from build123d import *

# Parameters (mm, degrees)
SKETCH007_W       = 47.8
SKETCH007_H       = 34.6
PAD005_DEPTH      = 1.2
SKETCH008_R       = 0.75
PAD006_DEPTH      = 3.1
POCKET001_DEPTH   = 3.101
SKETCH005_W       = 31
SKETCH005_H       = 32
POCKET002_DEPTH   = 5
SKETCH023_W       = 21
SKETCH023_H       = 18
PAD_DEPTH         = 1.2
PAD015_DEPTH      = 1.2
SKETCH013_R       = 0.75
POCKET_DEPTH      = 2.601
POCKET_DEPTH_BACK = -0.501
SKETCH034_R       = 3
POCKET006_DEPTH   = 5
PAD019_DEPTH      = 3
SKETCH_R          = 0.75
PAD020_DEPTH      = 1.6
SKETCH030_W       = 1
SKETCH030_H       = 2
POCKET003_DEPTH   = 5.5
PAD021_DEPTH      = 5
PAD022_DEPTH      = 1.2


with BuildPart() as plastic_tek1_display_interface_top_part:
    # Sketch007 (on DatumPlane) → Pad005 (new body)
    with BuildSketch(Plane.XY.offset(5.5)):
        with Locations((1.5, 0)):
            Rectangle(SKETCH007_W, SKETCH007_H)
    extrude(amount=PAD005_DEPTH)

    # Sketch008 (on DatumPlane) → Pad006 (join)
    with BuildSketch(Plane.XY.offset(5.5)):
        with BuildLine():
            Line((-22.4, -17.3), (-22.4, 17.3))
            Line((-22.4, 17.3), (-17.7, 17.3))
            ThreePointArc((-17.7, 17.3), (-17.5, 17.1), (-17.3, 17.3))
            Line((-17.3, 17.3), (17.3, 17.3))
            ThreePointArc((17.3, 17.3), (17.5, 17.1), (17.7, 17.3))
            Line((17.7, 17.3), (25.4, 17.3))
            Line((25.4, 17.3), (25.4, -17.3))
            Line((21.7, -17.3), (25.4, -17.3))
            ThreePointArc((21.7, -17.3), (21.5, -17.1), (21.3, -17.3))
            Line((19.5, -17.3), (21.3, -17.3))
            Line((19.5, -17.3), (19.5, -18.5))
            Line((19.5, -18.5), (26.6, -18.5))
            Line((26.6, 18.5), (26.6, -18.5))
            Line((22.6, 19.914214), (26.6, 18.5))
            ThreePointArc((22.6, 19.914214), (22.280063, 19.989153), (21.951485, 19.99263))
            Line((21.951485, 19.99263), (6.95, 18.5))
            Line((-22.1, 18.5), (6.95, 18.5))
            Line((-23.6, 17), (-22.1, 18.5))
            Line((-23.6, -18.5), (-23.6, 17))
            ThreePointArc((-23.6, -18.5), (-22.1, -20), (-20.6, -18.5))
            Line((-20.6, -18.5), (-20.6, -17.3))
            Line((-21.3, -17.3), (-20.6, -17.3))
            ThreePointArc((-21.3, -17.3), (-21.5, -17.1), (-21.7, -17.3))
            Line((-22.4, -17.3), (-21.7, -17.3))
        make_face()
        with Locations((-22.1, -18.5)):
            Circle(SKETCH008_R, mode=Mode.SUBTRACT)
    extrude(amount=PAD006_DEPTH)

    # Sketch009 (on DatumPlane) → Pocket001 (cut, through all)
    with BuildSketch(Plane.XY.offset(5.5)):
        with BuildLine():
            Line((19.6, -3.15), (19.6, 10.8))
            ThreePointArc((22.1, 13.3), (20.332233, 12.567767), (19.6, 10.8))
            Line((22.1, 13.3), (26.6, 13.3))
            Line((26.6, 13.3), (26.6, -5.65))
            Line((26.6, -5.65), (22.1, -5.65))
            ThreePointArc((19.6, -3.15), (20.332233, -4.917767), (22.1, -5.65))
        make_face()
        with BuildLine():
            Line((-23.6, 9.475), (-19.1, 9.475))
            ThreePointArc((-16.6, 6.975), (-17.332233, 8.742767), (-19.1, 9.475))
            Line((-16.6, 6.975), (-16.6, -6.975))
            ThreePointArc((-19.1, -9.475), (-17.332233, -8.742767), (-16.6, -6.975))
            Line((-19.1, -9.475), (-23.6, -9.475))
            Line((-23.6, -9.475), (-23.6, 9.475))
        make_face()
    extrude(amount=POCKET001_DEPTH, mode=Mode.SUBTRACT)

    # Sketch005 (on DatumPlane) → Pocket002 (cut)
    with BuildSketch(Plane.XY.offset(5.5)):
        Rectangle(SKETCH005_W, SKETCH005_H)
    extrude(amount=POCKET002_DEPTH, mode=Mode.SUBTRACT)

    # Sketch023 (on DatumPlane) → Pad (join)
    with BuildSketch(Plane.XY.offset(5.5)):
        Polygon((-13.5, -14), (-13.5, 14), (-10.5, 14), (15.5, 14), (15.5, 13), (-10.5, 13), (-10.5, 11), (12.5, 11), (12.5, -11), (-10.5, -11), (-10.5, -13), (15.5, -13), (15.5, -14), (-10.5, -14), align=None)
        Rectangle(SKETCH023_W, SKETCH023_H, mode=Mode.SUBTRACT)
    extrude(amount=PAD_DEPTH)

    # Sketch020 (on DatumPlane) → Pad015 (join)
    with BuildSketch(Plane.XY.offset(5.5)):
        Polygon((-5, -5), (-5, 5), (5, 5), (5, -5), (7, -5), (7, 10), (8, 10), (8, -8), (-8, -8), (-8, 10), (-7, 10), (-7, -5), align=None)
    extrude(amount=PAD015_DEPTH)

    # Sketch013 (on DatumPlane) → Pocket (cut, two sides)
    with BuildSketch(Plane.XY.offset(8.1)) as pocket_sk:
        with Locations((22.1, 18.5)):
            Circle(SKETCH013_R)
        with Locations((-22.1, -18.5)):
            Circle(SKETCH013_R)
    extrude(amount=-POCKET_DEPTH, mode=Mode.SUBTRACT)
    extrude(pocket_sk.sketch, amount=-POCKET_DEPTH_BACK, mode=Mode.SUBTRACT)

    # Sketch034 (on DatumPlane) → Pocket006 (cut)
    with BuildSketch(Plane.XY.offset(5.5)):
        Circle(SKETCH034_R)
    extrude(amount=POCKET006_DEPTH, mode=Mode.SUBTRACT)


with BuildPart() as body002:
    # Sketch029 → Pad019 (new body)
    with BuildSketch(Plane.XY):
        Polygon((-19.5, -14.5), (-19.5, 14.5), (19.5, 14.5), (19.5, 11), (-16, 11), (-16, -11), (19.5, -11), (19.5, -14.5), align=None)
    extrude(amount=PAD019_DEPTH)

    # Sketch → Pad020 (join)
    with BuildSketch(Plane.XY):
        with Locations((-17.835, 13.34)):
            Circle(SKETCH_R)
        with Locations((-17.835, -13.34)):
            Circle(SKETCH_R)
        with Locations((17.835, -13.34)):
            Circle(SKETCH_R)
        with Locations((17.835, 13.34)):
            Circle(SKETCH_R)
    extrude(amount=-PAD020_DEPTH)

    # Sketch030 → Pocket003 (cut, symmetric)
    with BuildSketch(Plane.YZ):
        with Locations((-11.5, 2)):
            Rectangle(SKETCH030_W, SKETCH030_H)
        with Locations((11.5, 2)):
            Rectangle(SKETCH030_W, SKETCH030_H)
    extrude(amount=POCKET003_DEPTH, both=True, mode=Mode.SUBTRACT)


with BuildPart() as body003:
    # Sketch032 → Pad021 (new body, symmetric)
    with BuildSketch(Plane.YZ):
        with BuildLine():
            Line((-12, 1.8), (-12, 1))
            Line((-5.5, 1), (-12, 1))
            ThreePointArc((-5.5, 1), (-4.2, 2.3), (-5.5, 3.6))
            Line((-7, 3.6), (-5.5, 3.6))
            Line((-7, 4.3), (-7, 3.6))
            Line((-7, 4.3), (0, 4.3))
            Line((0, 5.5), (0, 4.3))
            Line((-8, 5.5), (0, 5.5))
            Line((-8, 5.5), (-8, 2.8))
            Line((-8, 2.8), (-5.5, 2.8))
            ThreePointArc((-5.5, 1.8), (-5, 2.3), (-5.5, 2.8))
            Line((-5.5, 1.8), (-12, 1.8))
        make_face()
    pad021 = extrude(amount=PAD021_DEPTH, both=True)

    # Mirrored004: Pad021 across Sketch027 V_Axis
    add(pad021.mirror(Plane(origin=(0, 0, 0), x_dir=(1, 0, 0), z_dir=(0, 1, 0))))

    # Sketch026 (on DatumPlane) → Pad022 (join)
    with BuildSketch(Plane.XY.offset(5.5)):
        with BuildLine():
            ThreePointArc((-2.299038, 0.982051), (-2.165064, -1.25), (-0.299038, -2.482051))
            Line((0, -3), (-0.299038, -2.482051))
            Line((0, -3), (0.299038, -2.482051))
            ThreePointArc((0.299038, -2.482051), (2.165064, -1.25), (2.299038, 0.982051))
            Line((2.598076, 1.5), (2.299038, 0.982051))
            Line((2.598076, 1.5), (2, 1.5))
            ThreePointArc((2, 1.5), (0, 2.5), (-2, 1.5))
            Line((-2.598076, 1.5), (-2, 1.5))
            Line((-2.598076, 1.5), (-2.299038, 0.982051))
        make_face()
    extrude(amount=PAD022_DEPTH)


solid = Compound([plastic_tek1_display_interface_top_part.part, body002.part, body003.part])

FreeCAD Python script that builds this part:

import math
import FreeCAD as App
import Part
import Sketcher
Q = App.Units.Quantity

doc = App.newDocument("Part")
body = doc.addObject("PartDesign::Body", "Body")

# Sketch on XY plane
sketch1 = body.newObject("Sketcher::SketchObject", "Sketch")
sketch1.AttachmentSupport = (doc.getObject("XY_Plane"), [""])
sketch1.MapMode = "FlatFace"
sketch1.AttachmentOffset = App.Placement(App.Vector(0, 0, 5.5), App.Rotation())
sketch1.addGeometry([
    Part.LineSegment(App.Vector(-22.4, 17.3, 0), App.Vector(-22.4, -17.3, 0)),
    Part.LineSegment(App.Vector(-22.4, -17.3, 0), App.Vector(25.4, -17.3, 0)),
    Part.LineSegment(App.Vector(25.4, -17.3, 0), App.Vector(25.4, 17.3, 0)),
    Part.LineSegment(App.Vector(25.4, 17.3, 0), App.Vector(-22.4, 17.3, 0)),
], False)
sketch1.addConstraint([
    Sketcher.Constraint("Coincident", 0, 2, 1, 1),
    Sketcher.Constraint("Coincident", 1, 2, 2, 1),
    Sketcher.Constraint("Coincident", 2, 2, 3, 1),
    Sketcher.Constraint("Coincident", 3, 2, 0, 1),
    Sketcher.Constraint("Vertical", 0),
    Sketcher.Constraint("Horizontal", 1),
    Sketcher.Constraint("Vertical", 2),
    Sketcher.Constraint("Horizontal", 3),
    Sketcher.Constraint("DistanceX", 1, 1, 1, 2, Q("47.8 mm")),
    Sketcher.Constraint("DistanceY", 0, 2, 0, 1, Q("34.6 mm")),
    Sketcher.Constraint("DistanceX", 0, 2, -1, 1, Q("22.4 mm")),
    Sketcher.Constraint("DistanceY", 0, 2, -1, 1, Q("17.3 mm")),
])
pad1 = body.newObject("PartDesign::Pad", "Pad")
pad1.Profile = sketch1
pad1.Length = 1.2

# Sketch on XY plane
sketch2 = body.newObject("Sketcher::SketchObject", "Sketch001")
sketch2.AttachmentSupport = (doc.getObject("XY_Plane"), [""])
sketch2.MapMode = "FlatFace"
sketch2.AttachmentOffset = App.Placement(App.Vector(0, 0, 5.5), App.Rotation())
sketch2.addGeometry([
    Part.LineSegment(App.Vector(-22.4, -17.3, 0), App.Vector(-22.4, 17.3, 0)),  # 0
    Part.LineSegment(App.Vector(-22.4, 17.3, 0), App.Vector(-17.7, 17.3, 0)),  # 1
    Part.ArcOfCircle(Part.Circle(App.Vector(-17.5, 17.3, 0), App.Vector(0, 0, 1), 0.2), math.radians(180), math.radians(360)),  # 2
    Part.LineSegment(App.Vector(-17.3, 17.3, 0), App.Vector(17.3, 17.3, 0)),  # 3
    Part.ArcOfCircle(Part.Circle(App.Vector(17.5, 17.3, 0), App.Vector(0, 0, 1), 0.2), math.radians(180), math.radians(360)),  # 4
    Part.LineSegment(App.Vector(17.7, 17.3, 0), App.Vector(25.4, 17.3, 0)),  # 5
    Part.LineSegment(App.Vector(25.4, 17.3, 0), App.Vector(25.4, -17.3, 0)),  # 6
    Part.LineSegment(App.Vector(25.4, -17.3, 0), App.Vector(21.7, -17.3, 0)),  # 7
    Part.ArcOfCircle(Part.Circle(App.Vector(21.5, -17.3, 0), App.Vector(0, 0, 1), 0.2), math.radians(0), math.radians(180)),  # 8
    Part.LineSegment(App.Vector(21.3, -17.3, 0), App.Vector(19.5, -17.3, 0)),  # 9
    Part.LineSegment(App.Vector(19.5, -17.3, 0), App.Vector(19.5, -18.5, 0)),  # 10
    Part.LineSegment(App.Vector(19.5, -18.5, 0), App.Vector(26.6, -18.5, 0)),  # 11
    Part.LineSegment(App.Vector(26.6, -18.5, 0), App.Vector(26.6, 18.5, 0)),  # 12
    Part.LineSegment(App.Vector(26.6, 18.5, 0), App.Vector(22.6, 19.914214, 0)),  # 13
    Part.ArcOfCircle(Part.Circle(App.Vector(22.099997, 18.499975, 0), App.Vector(0, 0, 1), 1.500025), math.radians(70.528998), math.radians(95.681963)),  # 14
    Part.LineSegment(App.Vector(21.951485, 19.99263, 0), App.Vector(6.95, 18.5, 0)),  # 15
    Part.LineSegment(App.Vector(6.95, 18.5, 0), App.Vector(-22.1, 18.5, 0)),  # 16
    Part.LineSegment(App.Vector(-22.1, 18.5, 0), App.Vector(-23.6, 17, 0)),  # 17
    Part.LineSegment(App.Vector(-23.6, 17, 0), App.Vector(-23.6, -18.5, 0)),  # 18
    Part.ArcOfCircle(Part.Circle(App.Vector(-22.1, -18.5, 0), App.Vector(0, 0, 1), 1.5), math.radians(180), math.radians(360)),  # 19
    Part.LineSegment(App.Vector(-20.6, -18.5, 0), App.Vector(-20.6, -17.3, 0)),  # 20
    Part.LineSegment(App.Vector(-20.6, -17.3, 0), App.Vector(-21.3, -17.3, 0)),  # 21
    Part.ArcOfCircle(Part.Circle(App.Vector(-21.5, -17.3, 0), App.Vector(0, 0, 1), 0.2), math.radians(0), math.radians(180)),  # 22
    Part.LineSegment(App.Vector(-21.7, -17.3, 0), App.Vector(-22.4, -17.3, 0)),  # 23
    Part.Circle(App.Vector(-22.1, -18.5, 0), App.Vector(0, 0, 1), 0.75),  # 24
], False)
sketch2.addConstraint([
    Sketcher.Constraint("Coincident", 0, 2, 1, 1),
    Sketcher.Constraint("Coincident", 1, 2, 2, 1),
    Sketcher.Constraint("Coincident", 2, 2, 3, 1),
    Sketcher.Constraint("Coincident", 3, 2, 4, 1),
    Sketcher.Constraint("Coincident", 4, 2, 5, 1),
    Sketcher.Constraint("Coincident", 5, 2, 6, 1),
    Sketcher.Constraint("Coincident", 6, 2, 7, 1),
    Sketcher.Constraint("Coincident", 7, 2, 8, 1),
    Sketcher.Constraint("Coincident", 8, 2, 9, 1),
    Sketcher.Constraint("Coincident", 9, 2, 10, 1),
    Sketcher.Constraint("Coincident", 10, 2, 11, 1),
    Sketcher.Constraint("Coincident", 11, 2, 12, 1),
    Sketcher.Constraint("Coincident", 12, 2, 13, 1),
    Sketcher.Constraint("Coincident", 13, 2, 14, 1),
    Sketcher.Constraint("Coincident", 14, 2, 15, 1),
    Sketcher.Constraint("Coincident", 15, 2, 16, 1),
    Sketcher.Constraint("Coincident", 16, 2, 17, 1),
    Sketcher.Constraint("Coincident", 17, 2, 18, 1),
    Sketcher.Constraint("Tangent", 18, 2, 19, 1),
    Sketcher.Constraint("Tangent", 19, 2, 20, 1),
    Sketcher.Constraint("Coincident", 20, 2, 21, 1),
    Sketcher.Constraint("Coincident", 21, 2, 22, 1),
    Sketcher.Constraint("Coincident", 22, 2, 23, 1),
    Sketcher.Constraint("Coincident", 23, 2, 0, 1),
    Sketcher.Constraint("Vertical", 0),
    Sketcher.Constraint("Horizontal", 1),
    Sketcher.Constraint("Horizontal", 3),
    Sketcher.Constraint("Horizontal", 5),
    Sketcher.Constraint("Vertical", 6),
    Sketcher.Constraint("Horizontal", 7),
    Sketcher.Constraint("Horizontal", 9),
    Sketcher.Constraint("Vertical", 10),
    Sketcher.Constraint("Horizontal", 11),
    Sketcher.Constraint("Vertical", 12),
    Sketcher.Constraint("Horizontal", 16),
    Sketcher.Constraint("Vertical", 18),
    Sketcher.Constraint("Vertical", 20),
    Sketcher.Constraint("Horizontal", 21),
    Sketcher.Constraint("Horizontal", 23),
    Sketcher.Constraint("Coincident", 24, 3, 19, 3),
    Sketcher.Constraint("Equal", 2, 4),
    Sketcher.Constraint("Equal", 4, 8),
    Sketcher.Constraint("Equal", 8, 22),
    Sketcher.Constraint("Symmetric", 2, 3, 4, 3, -2),
    Sketcher.Constraint("Symmetric", 8, 3, 22, 3, -2),
    Sketcher.Constraint("Horizontal", 4, 3, 0, 2),
    Sketcher.Constraint("Horizontal", 1, 2, 2, 2),
    Sketcher.Constraint("Horizontal", 3, 2, 4, 2),
    Sketcher.Constraint("Horizontal", 22, 3, 6, 2),
    Sketcher.Constraint("Horizontal", 7, 2, 8, 2),
    Sketcher.Constraint("Horizontal", 24, 3, 10, 2),
    Sketcher.Constraint("Horizontal", 12, 2, 15, 2),
    Sketcher.Constraint("Horizontal", 9, 2, 20, 2),
    Sketcher.Constraint("Horizontal", 21, 2, 22, 2),
    Sketcher.Constraint("Vertical", 24, 3, 16, 2),
    Sketcher.Constraint("Equal", 21, 23),
    Sketcher.Constraint("Equal", 3, 0),
    Sketcher.Constraint("Diameter", 24, Q("1.5 mm")),
    Sketcher.Constraint("Radius", 2, Q("0.2 mm")),
    Sketcher.Constraint("Radius", 19, Q("1.5 mm")),
    Sketcher.Constraint("DistanceY", 12, 1, 12, 2, Q("37 mm")),
    Sketcher.Constraint("Angle", 17, Q("-135 deg")),
    Sketcher.Constraint("DistanceX", 1, 1, 1, 2, Q("4.7 mm")),
    Sketcher.Constraint("DistanceX", 3, 1, 3, 2, Q("34.6 mm")),
    Sketcher.Constraint("DistanceX", 5, 1, 5, 2, Q("7.7 mm")),
    Sketcher.Constraint("DistanceX", 7, 2, 7, 1, Q("3.7 mm")),
    Sketcher.Constraint("DistanceX", 9, 2, 9, 1, Q("1.8 mm")),
    Sketcher.Constraint("DistanceX", 11, 1, 11, 2, Q("7.1 mm")),
    Sketcher.Constraint("DistanceY", 10, 2, 10, 1, Q("1.2 mm")),
    Sketcher.Constraint("DistanceY", -1, 1, 17, 2, Q("17 mm")),
    Sketcher.Constraint("DistanceX", 13, 2, 12, 2, Q("4 mm")),
    Sketcher.Constraint("DistanceX", 16, 2, 16, 1, Q("29.05 mm")),
    Sketcher.Constraint("Radius", 14, Q("1.500025 mm")),
    Sketcher.Constraint("Distance", 13, Q("4.242641 mm")),
    Sketcher.Constraint("Distance", 15, Q("15.07556 mm")),
    Sketcher.Constraint("DistanceY", -1, 1, 14, 2, Q("19.99263 mm")),
])
pad2 = body.newObject("PartDesign::Pad", "Pad001")
pad2.Profile = sketch2
pad2.Length = 3.1

# Sketch on XY plane
sketch3 = body.newObject("Sketcher::SketchObject", "Sketch002")
sketch3.AttachmentSupport = (doc.getObject("XY_Plane"), [""])
sketch3.MapMode = "FlatFace"
sketch3.AttachmentOffset = App.Placement(App.Vector(0, 0, 5.5), App.Rotation())
sketch3.addGeometry([
    Part.LineSegment(App.Vector(19.6, 10.8, 0), App.Vector(19.6, -3.15, 0)),  # 0
    Part.ArcOfCircle(Part.Circle(App.Vector(22.1, -3.15, 0), App.Vector(0, 0, 1), 2.5), math.radians(179.999996), math.radians(270.000004)),  # 1
    Part.LineSegment(App.Vector(22.1, -5.65, 0), App.Vector(26.6, -5.65, 0)),  # 2
    Part.LineSegment(App.Vector(26.6, -5.65, 0), App.Vector(26.6, 13.3, 0)),  # 3
    Part.LineSegment(App.Vector(26.6, 13.3, 0), App.Vector(22.1, 13.3, 0)),  # 4
    Part.ArcOfCircle(Part.Circle(App.Vector(22.1, 10.8, 0), App.Vector(0, 0, 1), 2.5), math.radians(89.999996), math.radians(180.000004)),  # 5
    Part.LineSegment(App.Vector(-19.1, 9.475, 0), App.Vector(-23.6, 9.475, 0)),  # 6
    Part.LineSegment(App.Vector(-23.6, 9.475, 0), App.Vector(-23.6, -9.475, 0)),  # 7
    Part.LineSegment(App.Vector(-23.6, -9.475, 0), App.Vector(-19.1, -9.475, 0)),  # 8
    Part.ArcOfCircle(Part.Circle(App.Vector(-19.1, -6.975, 0), App.Vector(0, 0, 1), 2.5), math.radians(-90.000004), math.radians(0.000004)),  # 9
    Part.LineSegment(App.Vector(-16.6, -6.975, 0), App.Vector(-16.6, 6.975, 0)),  # 10
    Part.ArcOfCircle(Part.Circle(App.Vector(-19.1, 6.975, 0), App.Vector(0, 0, 1), 2.5), math.radians(-0.000004), math.radians(90.000004)),  # 11
], False)
sketch3.addConstraint([
    Sketcher.Constraint("Tangent", 0, 2, 1, 1),
    Sketcher.Constraint("Tangent", 1, 2, 2, 1),
    Sketcher.Constraint("Coincident", 2, 2, 3, 1),
    Sketcher.Constraint("Coincident", 3, 2, 4, 1),
    Sketcher.Constraint("Tangent", 4, 2, 5, 1),
    Sketcher.Constraint("Tangent", 5, 2, 0, 1),
    Sketcher.Constraint("Coincident", 6, 2, 7, 1),
    Sketcher.Constraint("Coincident", 7, 2, 8, 1),
    Sketcher.Constraint("Tangent", 8, 2, 9, 1),
    Sketcher.Constraint("Tangent", 9, 2, 10, 1),
    Sketcher.Constraint("Tangent", 10, 2, 11, 1),
    Sketcher.Constraint("Tangent", 11, 2, 6, 1),
    Sketcher.Constraint("Vertical", 0),
    Sketcher.Constraint("Horizontal", 2),
    Sketcher.Constraint("Vertical", 3),
    Sketcher.Constraint("Horizontal", 4),
    Sketcher.Constraint("Horizontal", 6),
    Sketcher.Constraint("Vertical", 7),
    Sketcher.Constraint("Horizontal", 8),
    Sketcher.Constraint("Vertical", 10),
    Sketcher.Constraint("Equal", 1, 5),
    Sketcher.Constraint("Equal", 5, 9),
    Sketcher.Constraint("Equal", 9, 11),
    Sketcher.Constraint("Equal", 4, 6),
    Sketcher.Constraint("Equal", 3, 7),
    Sketcher.Constraint("Radius", 1, Q("2.5 mm")),
    Sketcher.Constraint("DistanceX", 2, 1, 2, 2, Q("4.5 mm")),
    Sketcher.Constraint("DistanceY", 0, 2, 0, 1, Q("13.95 mm")),
    Sketcher.Constraint("DistanceX", -1, 1, 1, 3, Q("22.1 mm")),
    Sketcher.Constraint("DistanceY", -1, 1, 5, 3, Q("10.8 mm")),
    Sketcher.Constraint("DistanceX", 9, 3, -1, 1, Q("19.1 mm")),
    Sketcher.Constraint("DistanceY", 9, 3, -1, 1, Q("6.975 mm")),
])
pocket1 = body.newObject("PartDesign::Pocket", "Pocket")
pocket1.Profile = sketch3
pocket1.Type = "ThroughAll"
pocket1.Reversed = True

# Sketch on XY plane
sketch4 = body.newObject("Sketcher::SketchObject", "Sketch003")
sketch4.AttachmentSupport = (doc.getObject("XY_Plane"), [""])
sketch4.MapMode = "FlatFace"
sketch4.AttachmentOffset = App.Placement(App.Vector(0, 0, 5.5), App.Rotation())
sketch4.addGeometry([
    Part.LineSegment(App.Vector(-15.5, 16, 0), App.Vector(-15.5, -16, 0)),
    Part.LineSegment(App.Vector(-15.5, -16, 0), App.Vector(15.5, -16, 0)),
    Part.LineSegment(App.Vector(15.5, -16, 0), App.Vector(15.5, 16, 0)),
    Part.LineSegment(App.Vector(15.5, 16, 0), App.Vector(-15.5, 16, 0)),
], False)
sketch4.addConstraint([
    Sketcher.Constraint("Coincident", 0, 2, 1, 1),
    Sketcher.Constraint("Coincident", 1, 2, 2, 1),
    Sketcher.Constraint("Coincident", 2, 2, 3, 1),
    Sketcher.Constraint("Coincident", 3, 2, 0, 1),
    Sketcher.Constraint("Vertical", 0),
    Sketcher.Constraint("Horizontal", 1),
    Sketcher.Constraint("Vertical", 2),
    Sketcher.Constraint("Horizontal", 3),
    Sketcher.Constraint("Symmetric", 0, 2, 2, 2, -1, 1),
    Sketcher.Constraint("DistanceX", 1, 1, 1, 2, Q("31 mm")),
    Sketcher.Constraint("DistanceY", 0, 2, 0, 1, Q("32 mm")),
])
pocket2 = body.newObject("PartDesign::Pocket", "Pocket001")
pocket2.Profile = sketch4
pocket2.Length = 5
pocket2.Reversed = True

# Sketch on XY plane
sketch5 = body.newObject("Sketcher::SketchObject", "Sketch004")
sketch5.AttachmentSupport = (doc.getObject("XY_Plane"), [""])
sketch5.MapMode = "FlatFace"
sketch5.AttachmentOffset = App.Placement(App.Vector(0, 0, 5.5), App.Rotation())
sketch5.addGeometry([
    Part.LineSegment(App.Vector(-13.5, 14, 0), App.Vector(-13.5, -14, 0)),  # 0
    Part.LineSegment(App.Vector(-13.5, -14, 0), App.Vector(15.5, -14, 0)),  # 1
    Part.LineSegment(App.Vector(15.5, -14, 0), App.Vector(15.5, -13, 0)),  # 2
    Part.LineSegment(App.Vector(15.5, -13, 0), App.Vector(-10.5, -13, 0)),  # 3
    Part.LineSegment(App.Vector(-10.5, -13, 0), App.Vector(-10.5, -11, 0)),  # 4
    Part.LineSegment(App.Vector(-10.5, -11, 0), App.Vector(12.5, -11, 0)),  # 5
    Part.LineSegment(App.Vector(12.5, -11, 0), App.Vector(12.5, 11, 0)),  # 6
    Part.LineSegment(App.Vector(12.5, 11, 0), App.Vector(-10.5, 11, 0)),  # 7
    Part.LineSegment(App.Vector(-10.5, 11, 0), App.Vector(-10.5, 13, 0)),  # 8
    Part.LineSegment(App.Vector(-10.5, 13, 0), App.Vector(15.5, 13, 0)),  # 9
    Part.LineSegment(App.Vector(15.5, 13, 0), App.Vector(15.5, 14, 0)),  # 10
    Part.LineSegment(App.Vector(15.5, 14, 0), App.Vector(-13.5, 14, 0)),  # 11
    Part.LineSegment(App.Vector(-10.5, -9, 0), App.Vector(-10.5, 9, 0)),  # 12
    Part.LineSegment(App.Vector(-10.5, 9, 0), App.Vector(10.5, 9, 0)),  # 13
    Part.LineSegment(App.Vector(10.5, 9, 0), App.Vector(10.5, -9, 0)),  # 14
    Part.LineSegment(App.Vector(10.5, -9, 0), App.Vector(-10.5, -9, 0)),  # 15
], False)
sketch5.addConstraint([
    Sketcher.Constraint("Coincident", 0, 2, 1, 1),
    Sketcher.Constraint("Coincident", 1, 2, 2, 1),
    Sketcher.Constraint("Coincident", 2, 2, 3, 1),
    Sketcher.Constraint("Coincident", 3, 2, 4, 1),
    Sketcher.Constraint("Coincident", 4, 2, 5, 1),
    Sketcher.Constraint("Coincident", 5, 2, 6, 1),
    Sketcher.Constraint("Coincident", 6, 2, 7, 1),
    Sketcher.Constraint("Coincident", 7, 2, 8, 1),
    Sketcher.Constraint("Coincident", 8, 2, 9, 1),
    Sketcher.Constraint("Coincident", 9, 2, 10, 1),
    Sketcher.Constraint("Coincident", 10, 2, 11, 1),
    Sketcher.Constraint("Coincident", 11, 2, 0, 1),
    Sketcher.Constraint("Coincident", 12, 2, 13, 1),
    Sketcher.Constraint("Coincident", 13, 2, 14, 1),
    Sketcher.Constraint("Coincident", 14, 2, 15, 1),
    Sketcher.Constraint("Coincident", 15, 2, 12, 1),
    Sketcher.Constraint("Vertical", 0),
    Sketcher.Constraint("Horizontal", 1),
    Sketcher.Constraint("Vertical", 2),
    Sketcher.Constraint("Horizontal", 3),
    Sketcher.Constraint("Vertical", 4),
    Sketcher.Constraint("Horizontal", 5),
    Sketcher.Constraint("Vertical", 6),
    Sketcher.Constraint("Horizontal", 7),
    Sketcher.Constraint("Vertical", 8),
    Sketcher.Constraint("Horizontal", 9),
    Sketcher.Constraint("Vertical", 10),
    Sketcher.Constraint("Horizontal", 11),
    Sketcher.Constraint("Vertical", 12),
    Sketcher.Constraint("Horizontal", 13),
    Sketcher.Constraint("Vertical", 14),
    Sketcher.Constraint("Horizontal", 15),
    Sketcher.Constraint("Symmetric", 12, 2, 14, 2, -1, 1),
    Sketcher.Constraint("Symmetric", 4, 2, 7, 2, -1),
    Sketcher.Constraint("Symmetric", 2, 2, 9, 2, -1),
    Sketcher.Constraint("Vertical", 8, 2, 12, 2),
    Sketcher.Constraint("Equal", 2, 10),
    Sketcher.Constraint("DistanceX", 1, 1, 1, 2, Q("29 mm")),
    Sketcher.Constraint("DistanceX", 3, 2, 3, 1, Q("26 mm")),
    Sketcher.Constraint("DistanceX", 5, 1, 5, 2, Q("23 mm")),
    Sketcher.Constraint("DistanceX", 13, 1, 13, 2, Q("21 mm")),
    Sketcher.Constraint("DistanceY", 0, 2, 0, 1, Q("28 mm")),
    Sketcher.Constraint("DistanceY", 2, 1, 2, 2, Q("1 mm")),
    Sketcher.Constraint("DistanceY", 4, 1, 4, 2, Q("2 mm")),
    Sketcher.Constraint("DistanceY", 12, 1, 12, 2, Q("18 mm")),
])
pad3 = body.newObject("PartDesign::Pad", "Pad002")
pad3.Profile = sketch5
pad3.Length = 1.2

# Sketch on XY plane
sketch6 = body.newObject("Sketcher::SketchObject", "Sketch005")
sketch6.AttachmentSupport = (doc.getObject("XY_Plane"), [""])
sketch6.MapMode = "FlatFace"
sketch6.AttachmentOffset = App.Placement(App.Vector(0, 0, 5.5), App.Rotation())
sketch6.addGeometry([
    Part.LineSegment(App.Vector(-5, 5, 0), App.Vector(-5, -5, 0)),  # 0
    Part.LineSegment(App.Vector(-5, -5, 0), App.Vector(-7, -5, 0)),  # 1
    Part.LineSegment(App.Vector(-7, -5, 0), App.Vector(-7, 10, 0)),  # 2
    Part.LineSegment(App.Vector(-7, 10, 0), App.Vector(-8, 10, 0)),  # 3
    Part.LineSegment(App.Vector(-8, 10, 0), App.Vector(-8, -8, 0)),  # 4
    Part.LineSegment(App.Vector(-8, -8, 0), App.Vector(8, -8, 0)),  # 5
    Part.LineSegment(App.Vector(8, -8, 0), App.Vector(8, 10, 0)),  # 6
    Part.LineSegment(App.Vector(8, 10, 0), App.Vector(7, 10, 0)),  # 7
    Part.LineSegment(App.Vector(7, 10, 0), App.Vector(7, -5, 0)),  # 8
    Part.LineSegment(App.Vector(7, -5, 0), App.Vector(5, -5, 0)),  # 9
    Part.LineSegment(App.Vector(5, -5, 0), App.Vector(5, 5, 0)),  # 10
    Part.LineSegment(App.Vector(5, 5, 0), App.Vector(-5, 5, 0)),  # 11
], False)
sketch6.addConstraint([
    Sketcher.Constraint("Coincident", 0, 2, 1, 1),
    Sketcher.Constraint("Coincident", 1, 2, 2, 1),
    Sketcher.Constraint("Coincident", 2, 2, 3, 1),
    Sketcher.Constraint("Coincident", 3, 2, 4, 1),
    Sketcher.Constraint("Coincident", 4, 2, 5, 1),
    Sketcher.Constraint("Coincident", 5, 2, 6, 1),
    Sketcher.Constraint("Coincident", 6, 2, 7, 1),
    Sketcher.Constraint("Coincident", 7, 2, 8, 1),
    Sketcher.Constraint("Coincident", 8, 2, 9, 1),
    Sketcher.Constraint("Coincident", 9, 2, 10, 1),
    Sketcher.Constraint("Coincident", 10, 2, 11, 1),
    Sketcher.Constraint("Coincident", 11, 2, 0, 1),
    Sketcher.Constraint("Vertical", 0),
    Sketcher.Constraint("Horizontal", 1),
    Sketcher.Constraint("Vertical", 2),
    Sketcher.Constraint("Horizontal", 3),
    Sketcher.Constraint("Vertical", 4),
    Sketcher.Constraint("Horizontal", 5),
    Sketcher.Constraint("Vertical", 6),
    Sketcher.Constraint("Horizontal", 7),
    Sketcher.Constraint("Vertical", 8),
    Sketcher.Constraint("Horizontal", 9),
    Sketcher.Constraint("Vertical", 10),
    Sketcher.Constraint("Horizontal", 11),
    Sketcher.Constraint("Symmetric", 0, 2, 10, 2, -1, 1),
    Sketcher.Constraint("Symmetric", 3, 2, 6, 2, -2),
    Sketcher.Constraint("Symmetric", 1, 2, 8, 2, -2),
    Sketcher.Constraint("Equal", 11, 0),
    Sketcher.Constraint("DistanceX", 1, 2, 1, 1, Q("2 mm")),
    Sketcher.Constraint("DistanceX", 3, 2, 3, 1, Q("1 mm")),
    Sketcher.Constraint("DistanceX", 5, 1, 5, 2, Q("16 mm")),
    Sketcher.Constraint("DistanceY", 2, 1, 2, 2, Q("15 mm")),
    Sketcher.Constraint("DistanceY", 4, 2, 4, 1, Q("18 mm")),
])
pad4 = body.newObject("PartDesign::Pad", "Pad003")
pad4.Profile = sketch6
pad4.Length = 1.2

# Sketch on XY plane
sketch7 = body.newObject("Sketcher::SketchObject", "Sketch006")
sketch7.AttachmentSupport = (doc.getObject("XY_Plane"), [""])
sketch7.MapMode = "FlatFace"
sketch7.AttachmentOffset = App.Placement(App.Vector(0, 0, 8.1), App.Rotation())
sketch7.addGeometry([
    Part.Circle(App.Vector(22.1, 18.5, 0), App.Vector(0, 0, 1), 0.75),
    Part.Circle(App.Vector(-22.1, -18.5, 0), App.Vector(0, 0, 1), 0.75),
], False)
sketch7.addConstraint([
    Sketcher.Constraint("Equal", 0, 1),
    Sketcher.Constraint("Symmetric", 0, 3, 1, 3, -1, 1),
    Sketcher.Constraint("Diameter", 0, Q("1.5 mm")),
    Sketcher.Constraint("DistanceY", 1, 3, 0, 3, Q("37 mm")),
    Sketcher.Constraint("DistanceX", -1, 1, 0, 3, Q("22.1 mm")),
])
pocket3 = body.newObject("PartDesign::Pocket", "Pocket002")
pocket3.Profile = sketch7
pocket3.Type = "ThroughAll"
pocket3.Midplane = True

# Sketch on XY plane
sketch8 = body.newObject("Sketcher::SketchObject", "Sketch007")
sketch8.AttachmentSupport = (doc.getObject("XY_Plane"), [""])
sketch8.MapMode = "FlatFace"
sketch8.AttachmentOffset = App.Placement(App.Vector(0, 0, 5.5), App.Rotation())
sketch8.addGeometry(Part.Circle(App.Vector(0, 0, 0), App.Vector(0, 0, 1), 3), False)
sketch8.addConstraint([
    Sketcher.Constraint("Coincident", 0, 3, -1, 1),
    Sketcher.Constraint("Diameter", 0, Q("6 mm")),
])
pocket4 = body.newObject("PartDesign::Pocket", "Pocket003")
pocket4.Profile = sketch8
pocket4.Length = 5
pocket4.Reversed = True
body2 = doc.addObject("PartDesign::Body", "Body001")

# Sketch on XY plane
sketch9 = body2.newObject("Sketcher::SketchObject", "Sketch008")
sketch9.AttachmentSupport = (doc.getObject("XY_Plane001"), [""])
sketch9.MapMode = "FlatFace"
sketch9.addGeometry([
    Part.LineSegment(App.Vector(-19.5, 14.5, 0), App.Vector(-19.5, -14.5, 0)),  # 0
    Part.LineSegment(App.Vector(-19.5, -14.5, 0), App.Vector(19.5, -14.5, 0)),  # 1
    Part.LineSegment(App.Vector(19.5, -14.5, 0), App.Vector(19.5, -11, 0)),  # 2
    Part.LineSegment(App.Vector(19.5, -11, 0), App.Vector(-16, -11, 0)),  # 3
    Part.LineSegment(App.Vector(-16, -11, 0), App.Vector(-16, 11, 0)),  # 4
    Part.LineSegment(App.Vector(-16, 11, 0), App.Vector(19.5, 11, 0)),  # 5
    Part.LineSegment(App.Vector(19.5, 11, 0), App.Vector(19.5, 14.5, 0)),  # 6
    Part.LineSegment(App.Vector(19.5, 14.5, 0), App.Vector(-19.5, 14.5, 0)),  # 7
], False)
sketch9.addConstraint([
    Sketcher.Constraint("Coincident", 0, 2, 1, 1),
    Sketcher.Constraint("Coincident", 1, 2, 2, 1),
    Sketcher.Constraint("Coincident", 2, 2, 3, 1),
    Sketcher.Constraint("Coincident", 3, 2, 4, 1),
    Sketcher.Constraint("Coincident", 4, 2, 5, 1),
    Sketcher.Constraint("Coincident", 5, 2, 6, 1),
    Sketcher.Constraint("Coincident", 6, 2, 7, 1),
    Sketcher.Constraint("Coincident", 7, 2, 0, 1),
    Sketcher.Constraint("Vertical", 0),
    Sketcher.Constraint("Horizontal", 1),
    Sketcher.Constraint("Vertical", 2),
    Sketcher.Constraint("Horizontal", 3),
    Sketcher.Constraint("Vertical", 4),
    Sketcher.Constraint("Horizontal", 5),
    Sketcher.Constraint("Vertical", 6),
    Sketcher.Constraint("Horizontal", 7),
    Sketcher.Constraint("Symmetric", 0, 2, 6, 2, -1, 1),
    Sketcher.Constraint("Symmetric", 2, 2, 5, 2, -1),
    Sketcher.Constraint("DistanceX", 1, 1, 1, 2, Q("39 mm")),
    Sketcher.Constraint("DistanceY", 0, 2, 0, 1, Q("29 mm")),
    Sketcher.Constraint("DistanceY", 4, 1, 4, 2, Q("22 mm")),
    Sketcher.Constraint("DistanceX", 3, 2, 3, 1, Q("35.5 mm")),
])
pad5 = body2.newObject("PartDesign::Pad", "Pad004")
pad5.Profile = sketch9
pad5.Length = 3

# Sketch on XY plane
sketch10 = body2.newObject("Sketcher::SketchObject", "Sketch009")
sketch10.AttachmentSupport = (doc.getObject("XY_Plane001"), [""])
sketch10.MapMode = "FlatFace"
sketch10.addGeometry([
    Part.Circle(App.Vector(-17.835, 13.34, 0), App.Vector(0, 0, 1), 0.75),
    Part.Circle(App.Vector(-17.835, -13.34, 0), App.Vector(0, 0, 1), 0.75),
    Part.Circle(App.Vector(17.835, -13.34, 0), App.Vector(0, 0, 1), 0.75),
    Part.Circle(App.Vector(17.835, 13.34, 0), App.Vector(0, 0, 1), 0.75),
], False)
sketch10.addConstraint([
    Sketcher.Constraint("Equal", 0, 1),
    Sketcher.Constraint("Equal", 1, 2),
    Sketcher.Constraint("Equal", 2, 3),
    Sketcher.Constraint("Symmetric", 0, 3, 2, 3, -1, 1),
    Sketcher.Constraint("Symmetric", 1, 3, 3, 3, -1, 1),
    Sketcher.Constraint("Symmetric", 1, 3, 2, 3, -2),
    Sketcher.Constraint("Diameter", 0, Q("1.5 mm")),
    Sketcher.Constraint("DistanceY", -1, 1, 0, 3, Q("13.34 mm")),
    Sketcher.Constraint("DistanceX", 1, 3, 2, 3, Q("35.67 mm")),
])
pad6 = body2.newObject("PartDesign::Pad", "Pad005")
pad6.Profile = sketch10
pad6.Length = 1.6
pad6.Reversed = True

# Sketch on YZ plane
sketch11 = body2.newObject("Sketcher::SketchObject", "Sketch010")
sketch11.AttachmentSupport = (doc.getObject("YZ_Plane001"), [""])
sketch11.MapMode = "FlatFace"
sketch11.addGeometry([
    Part.LineSegment(App.Vector(-12, 3, 0), App.Vector(-12, 1, 0)),  # 0
    Part.LineSegment(App.Vector(-12, 1, 0), App.Vector(-11, 1, 0)),  # 1
    Part.LineSegment(App.Vector(-11, 1, 0), App.Vector(-11, 3, 0)),  # 2
    Part.LineSegment(App.Vector(-11, 3, 0), App.Vector(-12, 3, 0)),  # 3
    Part.LineSegment(App.Vector(11, 3, 0), App.Vector(11, 1, 0)),  # 4
    Part.LineSegment(App.Vector(11, 1, 0), App.Vector(12, 1, 0)),  # 5
    Part.LineSegment(App.Vector(12, 1, 0), App.Vector(12, 3, 0)),  # 6
    Part.LineSegment(App.Vector(12, 3, 0), App.Vector(11, 3, 0)),  # 7
], False)
sketch11.addConstraint([
    Sketcher.Constraint("Coincident", 0, 2, 1, 1),
    Sketcher.Constraint("Coincident", 1, 2, 2, 1),
    Sketcher.Constraint("Coincident", 2, 2, 3, 1),
    Sketcher.Constraint("Coincident", 3, 2, 0, 1),
    Sketcher.Constraint("Coincident", 4, 2, 5, 1),
    Sketcher.Constraint("Coincident", 5, 2, 6, 1),
    Sketcher.Constraint("Coincident", 6, 2, 7, 1),
    Sketcher.Constraint("Coincident", 7, 2, 4, 1),
    Sketcher.Constraint("Vertical", 0),
    Sketcher.Constraint("Horizontal", 1),
    Sketcher.Constraint("Vertical", 2),
    Sketcher.Constraint("Horizontal", 3),
    Sketcher.Constraint("Vertical", 4),
    Sketcher.Constraint("Horizontal", 5),
    Sketcher.Constraint("Vertical", 6),
    Sketcher.Constraint("Horizontal", 7),
    Sketcher.Constraint("Symmetric", 1, 2, 4, 2, -2),
    Sketcher.Constraint("Symmetric", 3, 2, 6, 2, -2),
    Sketcher.Constraint("DistanceX", 1, 1, 1, 2, Q("1 mm")),
    Sketcher.Constraint("DistanceY", 0, 2, 0, 1, Q("2 mm")),
    Sketcher.Constraint("DistanceX", 0, 2, -1, 1, Q("12 mm")),
    Sketcher.Constraint("DistanceY", -1, 1, 0, 2, Q("1 mm")),
])
pocket5 = body2.newObject("PartDesign::Pocket", "Pocket004")
pocket5.Profile = sketch11
pocket5.Length = 11
pocket5.Midplane = True
body3 = doc.addObject("PartDesign::Body", "Body002")

# Sketch on YZ plane
sketch12 = body3.newObject("Sketcher::SketchObject", "Sketch011")
sketch12.AttachmentSupport = (doc.getObject("YZ_Plane002"), [""])
sketch12.MapMode = "FlatFace"
sketch12.addGeometry([
    Part.LineSegment(App.Vector(-12, 1.8, 0), App.Vector(-12, 1, 0)),  # 0
    Part.LineSegment(App.Vector(-12, 1, 0), App.Vector(-5.5, 1, 0)),  # 1
    Part.ArcOfCircle(Part.Circle(App.Vector(-5.5, 2.3, 0), App.Vector(0, 0, 1), 1.3), math.radians(-90), math.radians(90)),  # 2
    Part.LineSegment(App.Vector(-5.5, 3.6, 0), App.Vector(-7, 3.6, 0)),  # 3
    Part.LineSegment(App.Vector(-7, 3.6, 0), App.Vector(-7, 4.3, 0)),  # 4
    Part.LineSegment(App.Vector(-7, 4.3, 0), App.Vector(0, 4.3, 0)),  # 5
    Part.LineSegment(App.Vector(0, 4.3, 0), App.Vector(0, 5.5, 0)),  # 6
    Part.LineSegment(App.Vector(0, 5.5, 0), App.Vector(-8, 5.5, 0)),  # 7
    Part.LineSegment(App.Vector(-8, 5.5, 0), App.Vector(-8, 2.8, 0)),  # 8
    Part.LineSegment(App.Vector(-8, 2.8, 0), App.Vector(-5.5, 2.8, 0)),  # 9
    Part.ArcOfCircle(Part.Circle(App.Vector(-5.5, 2.3, 0), App.Vector(0, 0, 1), 0.5), math.radians(-90), math.radians(90)),  # 10
    Part.LineSegment(App.Vector(-5.5, 1.8, 0), App.Vector(-12, 1.8, 0)),  # 11
], False)
sketch12.addConstraint([
    Sketcher.Constraint("Coincident", 0, 2, 1, 1),
    Sketcher.Constraint("Tangent", 1, 2, 2, 1),
    Sketcher.Constraint("Tangent", 2, 2, 3, 1),
    Sketcher.Constraint("Coincident", 3, 2, 4, 1),
    Sketcher.Constraint("Coincident", 4, 2, 5, 1),
    Sketcher.Constraint("Coincident", 5, 2, 6, 1),
    Sketcher.Constraint("Coincident", 6, 2, 7, 1),
    Sketcher.Constraint("Coincident", 7, 2, 8, 1),
    Sketcher.Constraint("Coincident", 8, 2, 9, 1),
    Sketcher.Constraint("Tangent", 9, 2, 10, 2),
    Sketcher.Constraint("Tangent", 10, 1, 11, 1),
    Sketcher.Constraint("Coincident", 11, 2, 0, 1),
    Sketcher.Constraint("Vertical", 0),
    Sketcher.Constraint("Horizontal", 1),
    Sketcher.Constraint("Horizontal", 3),
    Sketcher.Constraint("Vertical", 4),
    Sketcher.Constraint("Horizontal", 5),
    Sketcher.Constraint("Vertical", 6),
    Sketcher.Constraint("Horizontal", 7),
    Sketcher.Constraint("Vertical", 8),
    Sketcher.Constraint("Horizontal", 9),
    Sketcher.Constraint("Horizontal", 11),
    Sketcher.Constraint("Coincident", 10, 3, 2, 3),
    Sketcher.Constraint("PointOnObject", 5, 2, -2),
    Sketcher.Constraint("Radius", 2, Q("1.3 mm")),
    Sketcher.Constraint("Radius", 10, Q("0.5 mm")),
    Sketcher.Constraint("DistanceX", 5, 1, 5, 2, Q("7 mm")),
    Sketcher.Constraint("DistanceX", 7, 2, 7, 1, Q("8 mm")),
    Sketcher.Constraint("DistanceX", 1, 1, 1, 2, Q("6.5 mm")),
    Sketcher.Constraint("DistanceX", 3, 2, 3, 1, Q("1.5 mm")),
    Sketcher.Constraint("DistanceY", 4, 1, 4, 2, Q("0.7 mm")),
    Sketcher.Constraint("DistanceY", 6, 1, 6, 2, Q("1.2 mm")),
    Sketcher.Constraint("DistanceY", -1, 1, 0, 2, Q("1 mm")),
])
pad7 = body3.newObject("PartDesign::Pad", "Pad006")
pad7.Profile = sketch12
pad7.Length = 10
pad7.Midplane = True
doc.recompute()

mirrored = body3.newObject("PartDesign::Mirrored", "Mirrored")
mirrored.Originals = [pad7]
mirrored.MirrorPlane = (doc.getObject("XZ_Plane002"), [""])
body3.Tip = mirrored

# Sketch on XY plane
sketch13 = body3.newObject("Sketcher::SketchObject", "Sketch012")
sketch13.AttachmentSupport = (doc.getObject("XY_Plane002"), [""])
sketch13.MapMode = "FlatFace"
sketch13.AttachmentOffset = App.Placement(App.Vector(0, 0, 5.5), App.Rotation())
sketch13.addGeometry([
    Part.ArcOfCircle(Part.Circle(App.Vector(-0.000001, -0.000001, 0), App.Vector(0, 0, 1), 2.5), math.radians(156.869875), math.radians(263.130119)),  # 0
    Part.LineSegment(App.Vector(-0.299038, -2.482051, 0), App.Vector(0, -3, 0)),  # 1
    Part.LineSegment(App.Vector(0, -3, 0), App.Vector(0.299038, -2.482051, 0)),  # 2
    Part.ArcOfCircle(Part.Circle(App.Vector(0.000001, -0.000001, 0), App.Vector(0, 0, 1), 2.5), math.radians(-83.130119), math.radians(23.130125)),  # 3
    Part.LineSegment(App.Vector(2.299038, 0.982051, 0), App.Vector(2.598076, 1.5, 0)),  # 4
    Part.LineSegment(App.Vector(2.598076, 1.5, 0), App.Vector(2, 1.5, 0)),  # 5
    Part.ArcOfCircle(Part.Circle(App.Vector(0, 0, 0), App.Vector(0, 0, 1), 2.5), math.radians(36.869898), math.radians(143.130102)),  # 6
    Part.LineSegment(App.Vector(-2, 1.5, 0), App.Vector(-2.598076, 1.5, 0)),  # 7
    Part.LineSegment(App.Vector(-2.598076, 1.5, 0), App.Vector(-2.299038, 0.982051, 0)),  # 8
], False)
sketch13.addConstraint([
    Sketcher.Constraint("Coincident", 0, 2, 1, 1),
    Sketcher.Constraint("Coincident", 1, 2, 2, 1),
    Sketcher.Constraint("Coincident", 2, 2, 3, 1),
    Sketcher.Constraint("Coincident", 3, 2, 4, 1),
    Sketcher.Constraint("Coincident", 4, 2, 5, 1),
    Sketcher.Constraint("Coincident", 5, 2, 6, 1),
    Sketcher.Constraint("Coincident", 6, 2, 7, 1),
    Sketcher.Constraint("Coincident", 7, 2, 8, 1),
    Sketcher.Constraint("Coincident", 8, 2, 0, 1),
    Sketcher.Constraint("Horizontal", 5),
    Sketcher.Constraint("Horizontal", 7),
    Sketcher.Constraint("Coincident", 0, 3, -1, 1),
    Sketcher.Constraint("Coincident", 3, 3, -1, 1),
    Sketcher.Constraint("Coincident", 6, 3, -1, 1),
    Sketcher.Constraint("Equal", 0, 3),
    Sketcher.Constraint("Equal", 3, 6),
    Sketcher.Constraint("Symmetric", 4, 2, 7, 2, -2),
    Sketcher.Constraint("PointOnObject", 1, 2, -2),
    Sketcher.Constraint("Parallel", 2, 4),
    Sketcher.Constraint("Parallel", 1, 8),
    Sketcher.Constraint("Horizontal", 0, 2, 2, 2),
    Sketcher.Constraint("Equal", 2, 4),
    Sketcher.Constraint("Radius", 0, Q("2.5 mm")),
    Sketcher.Constraint("Angle", 1, Q("-60 deg")),
    Sketcher.Constraint("DistanceY", 1, 2, -1, 1, Q("3 mm")),
    Sketcher.Constraint("DistanceX", -1, 1, 5, 2, Q("2 mm")),
])
pad8 = body3.newObject("PartDesign::Pad", "Pad007")
pad8.Profile = sketch13
pad8.Length = 1.2

doc.recompute()
